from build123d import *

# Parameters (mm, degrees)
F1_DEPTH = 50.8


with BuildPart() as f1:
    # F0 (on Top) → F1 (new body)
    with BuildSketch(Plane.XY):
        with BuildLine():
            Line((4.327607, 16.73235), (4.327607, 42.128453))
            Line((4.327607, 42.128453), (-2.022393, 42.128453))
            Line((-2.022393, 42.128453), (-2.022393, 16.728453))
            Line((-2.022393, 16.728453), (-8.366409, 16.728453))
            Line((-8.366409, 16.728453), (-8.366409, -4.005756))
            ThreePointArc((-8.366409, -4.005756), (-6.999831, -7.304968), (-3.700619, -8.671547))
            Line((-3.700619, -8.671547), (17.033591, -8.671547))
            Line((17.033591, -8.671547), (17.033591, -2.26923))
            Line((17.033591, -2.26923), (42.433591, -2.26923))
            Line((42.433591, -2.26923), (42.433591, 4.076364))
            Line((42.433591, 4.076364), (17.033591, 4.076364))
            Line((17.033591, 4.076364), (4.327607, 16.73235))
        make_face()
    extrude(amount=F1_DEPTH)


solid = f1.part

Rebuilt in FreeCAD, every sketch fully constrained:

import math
import FreeCAD as App
import Part
import Sketcher

V = App.Vector
Q = App.Units.Quantity

doc = App.newDocument("Part")
body = doc.addObject("PartDesign::Body", "Body")

# Sketch on XY plane
sketch1 = body.newObject("Sketcher::SketchObject", "Sketch")
sketch1.AttachmentSupport = (doc.getObject("XY_Plane"), [""])
sketch1.MapMode = "FlatFace"
sketch1.addGeometry([
    Part.LineSegment(V(4.3, 16.7, 0), V(4.3, 42.1, 0)),  # 0
    Part.LineSegment(V(4.3, 42.1, 0), V(-2, 42.1, 0)),  # 1
    Part.LineSegment(V(-2, 42.1, 0), V(-2, 16.7, 0)),  # 2
    Part.LineSegment(V(-2, 16.7, 0), V(-8.4, 16.7, 0)),  # 3
    Part.LineSegment(V(-8.4, 16.7, 0), V(-8.4, -4, 0)),  # 4
    Part.ArcOfCircle(Part.Circle(V(-3.7, -4, 0), V(0, 0, 1), 4.7), math.radians(180), math.radians(270)),  # 5
    Part.LineSegment(V(-3.7, -8.7, 0), V(17, -8.7, 0)),  # 6
    Part.LineSegment(V(17, -8.7, 0), V(17, -2.3, 0)),  # 7
    Part.LineSegment(V(17, -2.3, 0), V(42.4, -2.3, 0)),  # 8
    Part.LineSegment(V(42.4, -2.3, 0), V(42.4, 4.1, 0)),  # 9
    Part.LineSegment(V(42.4, 4.1, 0), V(17, 4.1, 0)),  # 10
    Part.LineSegment(V(17, 4.1, 0), V(4.3, 16.7, 0)),  # 11
], False)
sketch1.addConstraint([
    Sketcher.Constraint("Coincident", 0, 2, 1, 1),
    Sketcher.Constraint("Coincident", 1, 2, 2, 1),
    Sketcher.Constraint("Coincident", 2, 2, 3, 1),
    Sketcher.Constraint("Coincident", 3, 2, 4, 1),
    Sketcher.Constraint("Tangent", 4, 2, 5, 1),
    Sketcher.Constraint("Tangent", 5, 2, 6, 1),
    Sketcher.Constraint("Coincident", 6, 2, 7, 1),
    Sketcher.Constraint("Coincident", 7, 2, 8, 1),
    Sketcher.Constraint("Coincident", 8, 2, 9, 1),
    Sketcher.Constraint("Coincident", 9, 2, 10, 1),
    Sketcher.Constraint("Coincident", 10, 2, 11, 1),
    Sketcher.Constraint("Coincident", 11, 2, 0, 1),
    Sketcher.Constraint("Vertical", 0),
    Sketcher.Constraint("Horizontal", 1),
    Sketcher.Constraint("Vertical", 2),
    Sketcher.Constraint("Horizontal", 3),
    Sketcher.Constraint("Vertical", 4),
    Sketcher.Constraint("Horizontal", 6),
    Sketcher.Constraint("Vertical", 7),
    Sketcher.Constraint("Horizontal", 8),
    Sketcher.Constraint("Vertical", 9),
    Sketcher.Constraint("Horizontal", 10),
    Sketcher.Constraint("Vertical", 7, 2, 10, 2),
    Sketcher.Constraint("Equal", 10, 2),
    Sketcher.Constraint("Equal", 6, 4),
    Sketcher.Constraint("DistanceX", 8, 1, 8, 2, Q("1 in")),
    Sketcher.Constraint("DistanceY", 5, 2, 2, 2, Q("1 in")),
    Sketcher.Constraint("DistanceX", 1, 2, 1, 1, Q("0.25 in")),
    Sketcher.Constraint("Radius", 5, 4.665791),
    Sketcher.Constraint("DistanceX", 3, 2, 3, 1, 6.344016),
    Sketcher.Constraint("DistanceY", 0, 1, 0, 2, 25.396103),
    Sketcher.Constraint("DistanceY", 7, 1, 7, 2, 6.402317),
    Sketcher.Constraint("DistanceY", 9, 1, 9, 2, 6.345594),
    Sketcher.Constraint("DistanceX", 5, 3, -1, 1, 3.700618),
    Sketcher.Constraint("DistanceY", 7, 2, -1, 1, 2.26923),
])
pad1 = body.newObject("PartDesign::Pad", "Pad")
pad1.Profile = sketch1
pad1.Length = Q("2 in")

doc.recompute()
